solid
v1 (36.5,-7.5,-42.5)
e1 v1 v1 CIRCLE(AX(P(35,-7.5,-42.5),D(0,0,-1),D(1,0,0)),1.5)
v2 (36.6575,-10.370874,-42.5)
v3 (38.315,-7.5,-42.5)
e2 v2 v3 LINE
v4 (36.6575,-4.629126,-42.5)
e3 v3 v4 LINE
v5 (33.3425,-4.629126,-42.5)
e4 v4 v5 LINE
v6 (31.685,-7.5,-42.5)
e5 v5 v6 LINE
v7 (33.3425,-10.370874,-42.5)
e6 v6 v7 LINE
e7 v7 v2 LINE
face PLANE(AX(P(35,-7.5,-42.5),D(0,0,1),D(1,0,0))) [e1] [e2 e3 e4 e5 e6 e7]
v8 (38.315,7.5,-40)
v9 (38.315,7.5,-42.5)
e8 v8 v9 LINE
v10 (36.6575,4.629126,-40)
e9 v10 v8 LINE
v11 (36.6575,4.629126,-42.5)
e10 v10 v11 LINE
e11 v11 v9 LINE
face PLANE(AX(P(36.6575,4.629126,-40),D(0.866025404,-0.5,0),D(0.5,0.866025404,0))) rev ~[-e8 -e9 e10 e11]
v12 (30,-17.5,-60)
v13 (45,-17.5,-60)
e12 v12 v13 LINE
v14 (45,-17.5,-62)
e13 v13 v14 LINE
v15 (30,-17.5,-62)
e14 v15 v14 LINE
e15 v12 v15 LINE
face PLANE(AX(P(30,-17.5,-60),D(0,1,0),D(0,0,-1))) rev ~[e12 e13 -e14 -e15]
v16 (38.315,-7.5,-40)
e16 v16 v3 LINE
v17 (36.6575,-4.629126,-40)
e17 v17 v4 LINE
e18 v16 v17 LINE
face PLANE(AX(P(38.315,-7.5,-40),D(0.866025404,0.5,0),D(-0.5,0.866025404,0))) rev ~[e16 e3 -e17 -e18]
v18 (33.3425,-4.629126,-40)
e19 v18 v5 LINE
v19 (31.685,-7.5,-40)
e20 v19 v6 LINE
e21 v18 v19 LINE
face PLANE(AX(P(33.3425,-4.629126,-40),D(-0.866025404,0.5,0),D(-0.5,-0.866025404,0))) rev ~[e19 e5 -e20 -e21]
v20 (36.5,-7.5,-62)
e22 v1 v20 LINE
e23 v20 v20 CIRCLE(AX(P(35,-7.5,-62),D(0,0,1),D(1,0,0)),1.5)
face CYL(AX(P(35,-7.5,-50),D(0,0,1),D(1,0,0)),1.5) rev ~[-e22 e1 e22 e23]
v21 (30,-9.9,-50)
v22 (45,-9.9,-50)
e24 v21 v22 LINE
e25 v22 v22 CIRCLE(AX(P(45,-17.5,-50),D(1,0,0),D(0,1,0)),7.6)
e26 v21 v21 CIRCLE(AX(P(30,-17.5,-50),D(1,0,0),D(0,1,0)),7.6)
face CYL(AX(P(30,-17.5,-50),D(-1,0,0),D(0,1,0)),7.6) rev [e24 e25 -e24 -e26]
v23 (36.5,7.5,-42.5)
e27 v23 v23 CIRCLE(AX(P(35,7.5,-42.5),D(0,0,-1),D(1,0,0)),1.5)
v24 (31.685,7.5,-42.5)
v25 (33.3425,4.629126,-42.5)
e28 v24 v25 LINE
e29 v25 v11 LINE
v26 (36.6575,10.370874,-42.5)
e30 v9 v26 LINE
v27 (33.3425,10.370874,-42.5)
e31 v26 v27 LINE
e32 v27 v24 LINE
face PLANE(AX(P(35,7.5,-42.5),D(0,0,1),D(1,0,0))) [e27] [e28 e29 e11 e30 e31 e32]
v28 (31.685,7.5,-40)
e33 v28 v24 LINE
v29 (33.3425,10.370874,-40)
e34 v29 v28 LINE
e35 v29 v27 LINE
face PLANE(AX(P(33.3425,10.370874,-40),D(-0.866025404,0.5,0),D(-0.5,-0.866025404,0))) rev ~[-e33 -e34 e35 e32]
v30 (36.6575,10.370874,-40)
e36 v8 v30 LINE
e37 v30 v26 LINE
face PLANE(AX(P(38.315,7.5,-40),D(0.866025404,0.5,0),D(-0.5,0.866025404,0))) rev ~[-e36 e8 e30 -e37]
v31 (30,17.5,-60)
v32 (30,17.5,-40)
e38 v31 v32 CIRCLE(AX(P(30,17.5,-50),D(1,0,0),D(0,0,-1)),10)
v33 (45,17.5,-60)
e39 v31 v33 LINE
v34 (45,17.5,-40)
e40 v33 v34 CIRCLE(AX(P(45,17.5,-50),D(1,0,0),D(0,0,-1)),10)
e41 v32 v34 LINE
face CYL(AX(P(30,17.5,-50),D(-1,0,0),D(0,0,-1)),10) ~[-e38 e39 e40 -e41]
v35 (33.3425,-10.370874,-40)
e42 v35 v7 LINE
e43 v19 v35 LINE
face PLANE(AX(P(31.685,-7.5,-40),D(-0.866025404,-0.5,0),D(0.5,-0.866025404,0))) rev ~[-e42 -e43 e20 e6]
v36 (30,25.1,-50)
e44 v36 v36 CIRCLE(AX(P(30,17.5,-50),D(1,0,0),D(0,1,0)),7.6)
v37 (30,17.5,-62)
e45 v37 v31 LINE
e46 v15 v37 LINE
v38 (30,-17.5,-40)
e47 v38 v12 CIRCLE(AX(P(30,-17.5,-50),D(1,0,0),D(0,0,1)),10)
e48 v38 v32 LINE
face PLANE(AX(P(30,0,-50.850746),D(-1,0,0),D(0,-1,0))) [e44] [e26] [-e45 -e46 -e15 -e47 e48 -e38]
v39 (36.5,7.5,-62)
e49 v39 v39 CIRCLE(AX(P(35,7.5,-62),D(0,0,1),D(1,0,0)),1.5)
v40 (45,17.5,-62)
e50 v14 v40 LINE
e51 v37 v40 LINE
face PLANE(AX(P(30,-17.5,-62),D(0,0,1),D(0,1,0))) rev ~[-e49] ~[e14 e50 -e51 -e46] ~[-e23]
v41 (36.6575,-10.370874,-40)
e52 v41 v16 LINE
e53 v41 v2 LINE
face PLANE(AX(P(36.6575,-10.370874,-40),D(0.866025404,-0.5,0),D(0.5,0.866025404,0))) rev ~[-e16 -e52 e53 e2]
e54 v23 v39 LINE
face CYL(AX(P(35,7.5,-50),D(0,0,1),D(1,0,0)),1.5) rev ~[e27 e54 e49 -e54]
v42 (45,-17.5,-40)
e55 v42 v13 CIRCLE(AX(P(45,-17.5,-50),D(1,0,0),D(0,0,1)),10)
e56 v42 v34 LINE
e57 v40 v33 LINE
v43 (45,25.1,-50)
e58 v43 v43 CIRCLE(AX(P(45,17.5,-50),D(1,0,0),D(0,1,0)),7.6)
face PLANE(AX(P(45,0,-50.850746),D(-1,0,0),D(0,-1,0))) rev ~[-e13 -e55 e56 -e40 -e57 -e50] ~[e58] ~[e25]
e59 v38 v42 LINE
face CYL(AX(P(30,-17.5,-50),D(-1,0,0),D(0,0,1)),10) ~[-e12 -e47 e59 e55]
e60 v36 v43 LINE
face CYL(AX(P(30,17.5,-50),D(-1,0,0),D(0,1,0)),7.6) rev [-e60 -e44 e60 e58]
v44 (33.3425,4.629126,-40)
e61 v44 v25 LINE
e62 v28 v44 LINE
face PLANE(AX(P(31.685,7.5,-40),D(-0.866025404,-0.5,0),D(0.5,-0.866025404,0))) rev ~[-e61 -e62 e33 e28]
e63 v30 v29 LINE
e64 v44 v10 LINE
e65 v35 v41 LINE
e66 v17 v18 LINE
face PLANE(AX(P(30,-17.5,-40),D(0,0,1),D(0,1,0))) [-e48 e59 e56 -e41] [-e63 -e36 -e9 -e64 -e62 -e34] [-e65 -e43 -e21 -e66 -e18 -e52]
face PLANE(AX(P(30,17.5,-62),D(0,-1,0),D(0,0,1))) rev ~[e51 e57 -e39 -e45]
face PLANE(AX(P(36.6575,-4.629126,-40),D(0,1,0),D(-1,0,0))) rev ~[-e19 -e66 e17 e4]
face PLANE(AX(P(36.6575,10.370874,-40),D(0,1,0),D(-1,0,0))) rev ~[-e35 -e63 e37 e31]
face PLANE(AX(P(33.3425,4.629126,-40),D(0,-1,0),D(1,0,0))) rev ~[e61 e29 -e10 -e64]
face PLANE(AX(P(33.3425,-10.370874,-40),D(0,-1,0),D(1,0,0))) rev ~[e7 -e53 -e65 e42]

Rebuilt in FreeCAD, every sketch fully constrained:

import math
import FreeCAD as App
import Part
import Sketcher

V = App.Vector
Q = App.Units.Quantity

doc = App.newDocument("Part")
body = doc.addObject("PartDesign::Body", "Body")

# Sketch on YZ plane
sketch1 = body.newObject("Sketcher::SketchObject", "Sketch")
sketch1.AttachmentSupport = (doc.getObject("YZ_Plane"), [""])
sketch1.MapMode = "FlatFace"
sketch1.addGeometry(Part.LineSegment(V(17.5, 10, 0), V(-17.5, 10, 0)), False)
sketch1.addGeometry(Part.ArcOfCircle(Part.Circle(V(-17.5, 0, 0), V(0, 0, 1), 10), math.radians(90), math.radians(270)), False)
sketch1.addGeometry(Part.LineSegment(V(-17.5, -10, 0), V(-17.5, -12, 0)), False)
sketch1.addGeometry(Part.LineSegment(V(-17.5, -12, 0), V(17.5, -12, 0)), False)
sketch1.addGeometry(Part.LineSegment(V(17.5, -12, 0), V(17.5, -10, 0)), False)
sketch1.addGeometry(Part.ArcOfCircle(Part.Circle(V(17.5, 0, 0), V(0, 0, 1), 10), math.radians(-90), math.radians(90)), False)
sketch1.addGeometry(Part.Circle(V(17.5, 0, 0), V(0, 0, 1), 7.6), False)
sketch1.addGeometry(Part.Circle(V(-17.5, 0, 0), V(0, 0, 1), 7.6), False)
sketch1.addConstraint(Sketcher.Constraint("Tangent", 0, 2, 1, 1))
sketch1.addConstraint(Sketcher.Constraint("Coincident", 1, 2, 2, 1))
sketch1.addConstraint(Sketcher.Constraint("Coincident", 2, 2, 3, 1))
sketch1.addConstraint(Sketcher.Constraint("Coincident", 3, 2, 4, 1))
sketch1.addConstraint(Sketcher.Constraint("Coincident", 4, 2, 5, 1))
sketch1.addConstraint(Sketcher.Constraint("Tangent", 5, 2, 0, 1))
sketch1.addConstraint(Sketcher.Constraint("Horizontal", 0))
sketch1.addConstraint(Sketcher.Constraint("Vertical", 2))
sketch1.addConstraint(Sketcher.Constraint("Horizontal", 3))
sketch1.addConstraint(Sketcher.Constraint("Vertical", 4))
sketch1.addConstraint(Sketcher.Constraint("Coincident", 6, 3, 5, 3))
sketch1.addConstraint(Sketcher.Constraint("Coincident", 7, 3, 1, 3))
sketch1.addConstraint(Sketcher.Constraint("Equal", 1, 5))
sketch1.addConstraint(Sketcher.Constraint("Equal", 6, 7))
sketch1.addConstraint(Sketcher.Constraint("Symmetric", 1, 3, 5, 3, -1, 1))
sketch1.addConstraint(Sketcher.Constraint("Vertical", 0, 2, 1, 2))
sketch1.addConstraint(Sketcher.Constraint("Vertical", 6, 3, 3, 2))
sketch1.addConstraint(Sketcher.Constraint("Radius", 1, 10.0))
sketch1.addConstraint(Sketcher.Constraint("Diameter", 6, 15.2))
sketch1.addConstraint(Sketcher.Constraint("DistanceX", 0, 2, 0, 1, 35.0))
sketch1.addConstraint(Sketcher.Constraint("DistanceY", 2, 2, 2, 1, 2.0))
pad1 = body.newObject("PartDesign::Pad", "Pad")
pad1.Profile = sketch1
pad1.Length = 15

# Sketch on XY plane
sketch2 = body.newObject("Sketcher::SketchObject", "Sketch001")
sketch2.AttachmentSupport = (doc.getObject("XY_Plane"), [""])
sketch2.MapMode = "FlatFace"
sketch2.addGeometry(Part.Circle(V(5, 7.5, 0), V(0, 0, 1), 1.5), False)
sketch2.addGeometry(Part.Circle(V(5, -7.5, 0), V(0, 0, 1), 1.5), False)
sketch2.addConstraint(Sketcher.Constraint("Equal", 0, 1))
sketch2.addConstraint(Sketcher.Constraint("Symmetric", 0, 3, 1, 3, -1))
sketch2.addConstraint(Sketcher.Constraint("Diameter", 0, 3.0))
sketch2.addConstraint(Sketcher.Constraint("DistanceX", -1, 1, 0, 3, 5.0))
sketch2.addConstraint(Sketcher.Constraint("DistanceY", 1, 3, 0, 3, 15.0))
pocket1 = body.newObject("PartDesign::Pocket", "Pocket")
pocket1.Profile = sketch2
pocket1.Type = "ThroughAll"
pocket1.Midplane = True

# Sketch on XY plane
sketch3 = body.newObject("Sketcher::SketchObject", "Sketch002")
sketch3.AttachmentSupport = (doc.getObject("XY_Plane"), [""])
sketch3.MapMode = "FlatFace"
sketch3.AttachmentOffset = App.Placement(V(0, 0, 10), App.Rotation())
sketch3.addGeometry(Part.LineSegment(V(6.7, 10.4, 0), V(3.3, 10.4, 0)), False)
sketch3.addGeometry(Part.LineSegment(V(3.3, 10.4, 0), V(1.7, 7.5, 0)), False)
sketch3.addGeometry(Part.LineSegment(V(1.7, 7.5, 0), V(3.3, 4.6, 0)), False)
sketch3.addGeometry(Part.LineSegment(V(3.3, 4.6, 0), V(6.7, 4.6, 0)), False)
sketch3.addGeometry(Part.LineSegment(V(6.7, 4.6, 0), V(8.3, 7.5, 0)), False)
sketch3.addGeometry(Part.LineSegment(V(8.3, 7.5, 0), V(6.7, 10.4, 0)), False)
sketch3.addGeometry(Part.LineSegment(V(6.7, -4.6, 0), V(3.3, -4.6, 0)), False)
sketch3.addGeometry(Part.LineSegment(V(3.3, -4.6, 0), V(1.7, -7.5, 0)), False)
sketch3.addGeometry(Part.LineSegment(V(1.7, -7.5, 0), V(3.3, -10.4, 0)), False)
sketch3.addGeometry(Part.LineSegment(V(3.3, -10.4, 0), V(6.7, -10.4, 0)), False)
sketch3.addGeometry(Part.LineSegment(V(6.7, -10.4, 0), V(8.3, -7.5, 0)), False)
sketch3.addGeometry(Part.LineSegment(V(8.3, -7.5, 0), V(6.7, -4.6, 0)), False)
sketch3.addConstraint(Sketcher.Constraint("Coincident", 0, 2, 1, 1))
sketch3.addConstraint(Sketcher.Constraint("Coincident", 1, 2, 2, 1))
sketch3.addConstraint(Sketcher.Constraint("Coincident", 2, 2, 3, 1))
sketch3.addConstraint(Sketcher.Constraint("Coincident", 3, 2, 4, 1))
sketch3.addConstraint(Sketcher.Constraint("Coincident", 4, 2, 5, 1))
sketch3.addConstraint(Sketcher.Constraint("Coincident", 5, 2, 0, 1))
sketch3.addConstraint(Sketcher.Constraint("Coincident", 6, 2, 7, 1))
sketch3.addConstraint(Sketcher.Constraint("Coincident", 7, 2, 8, 1))
sketch3.addConstraint(Sketcher.Constraint("Coincident", 8, 2, 9, 1))
sketch3.addConstraint(Sketcher.Constraint("Coincident", 9, 2, 10, 1))
sketch3.addConstraint(Sketcher.Constraint("Coincident", 10, 2, 11, 1))
sketch3.addConstraint(Sketcher.Constraint("Coincident", 11, 2, 6, 1))
sketch3.addConstraint(Sketcher.Constraint("Horizontal", 0))
sketch3.addConstraint(Sketcher.Constraint("Horizontal", 3))
sketch3.addConstraint(Sketcher.Constraint("Horizontal", 6))
sketch3.addConstraint(Sketcher.Constraint("Horizontal", 9))
sketch3.addConstraint(Sketcher.Constraint("Symmetric", 2, 2, 6, 2, -1))
sketch3.addConstraint(Sketcher.Constraint("Symmetric", 1, 2, 7, 2, -1))
sketch3.addConstraint(Sketcher.Constraint("Symmetric", 0, 2, 8, 2, -1))
sketch3.addConstraint(Sketcher.Constraint("Symmetric", 4, 2, 10, 2, -1))
sketch3.addConstraint(Sketcher.Constraint("Parallel", 1, 4))
sketch3.addConstraint(Sketcher.Constraint("Parallel", 2, 5))
sketch3.addConstraint(Sketcher.Constraint("Parallel", 4, 7))
sketch3.addConstraint(Sketcher.Constraint("Parallel", 7, 10))
sketch3.addConstraint(Sketcher.Constraint("Parallel", 8, 11))
sketch3.addConstraint(Sketcher.Constraint("Horizontal", 1, 2, 4, 2))
sketch3.addConstraint(Sketcher.Constraint("Vertical", 0, 2, 2, 2))
sketch3.addConstraint(Sketcher.Constraint("Angle", 1, Q("-120 deg")))
sketch3.addConstraint(Sketcher.Constraint("DistanceY", 6, 2, 0, 2, 15.0))
sketch3.addConstraint(Sketcher.Constraint("DistanceX", 0, 2, 0, 1, 3.315))
sketch3.addConstraint(Sketcher.Constraint("DistanceX", 1, 2, 4, 2, 6.63))
sketch3.addConstraint(Sketcher.Constraint("DistanceX", -1, 1, 1, 2, 1.685))
pocket2 = body.newObject("PartDesign::Pocket", "Pocket001")
pocket2.Profile = sketch3
pocket2.Length = 2.5
body2 = doc.addObject("PartDesign::Body", "Body001")
doc.recompute()

body.Placement = App.Placement(V(30, 0, -50), App.Rotation(V(0, 0, 1), 0))
boolean = body2.newObject("PartDesign::Boolean", "Boolean")
boolean.Type = "Fuse"
boolean.addObjects([body])

doc.recompute()
